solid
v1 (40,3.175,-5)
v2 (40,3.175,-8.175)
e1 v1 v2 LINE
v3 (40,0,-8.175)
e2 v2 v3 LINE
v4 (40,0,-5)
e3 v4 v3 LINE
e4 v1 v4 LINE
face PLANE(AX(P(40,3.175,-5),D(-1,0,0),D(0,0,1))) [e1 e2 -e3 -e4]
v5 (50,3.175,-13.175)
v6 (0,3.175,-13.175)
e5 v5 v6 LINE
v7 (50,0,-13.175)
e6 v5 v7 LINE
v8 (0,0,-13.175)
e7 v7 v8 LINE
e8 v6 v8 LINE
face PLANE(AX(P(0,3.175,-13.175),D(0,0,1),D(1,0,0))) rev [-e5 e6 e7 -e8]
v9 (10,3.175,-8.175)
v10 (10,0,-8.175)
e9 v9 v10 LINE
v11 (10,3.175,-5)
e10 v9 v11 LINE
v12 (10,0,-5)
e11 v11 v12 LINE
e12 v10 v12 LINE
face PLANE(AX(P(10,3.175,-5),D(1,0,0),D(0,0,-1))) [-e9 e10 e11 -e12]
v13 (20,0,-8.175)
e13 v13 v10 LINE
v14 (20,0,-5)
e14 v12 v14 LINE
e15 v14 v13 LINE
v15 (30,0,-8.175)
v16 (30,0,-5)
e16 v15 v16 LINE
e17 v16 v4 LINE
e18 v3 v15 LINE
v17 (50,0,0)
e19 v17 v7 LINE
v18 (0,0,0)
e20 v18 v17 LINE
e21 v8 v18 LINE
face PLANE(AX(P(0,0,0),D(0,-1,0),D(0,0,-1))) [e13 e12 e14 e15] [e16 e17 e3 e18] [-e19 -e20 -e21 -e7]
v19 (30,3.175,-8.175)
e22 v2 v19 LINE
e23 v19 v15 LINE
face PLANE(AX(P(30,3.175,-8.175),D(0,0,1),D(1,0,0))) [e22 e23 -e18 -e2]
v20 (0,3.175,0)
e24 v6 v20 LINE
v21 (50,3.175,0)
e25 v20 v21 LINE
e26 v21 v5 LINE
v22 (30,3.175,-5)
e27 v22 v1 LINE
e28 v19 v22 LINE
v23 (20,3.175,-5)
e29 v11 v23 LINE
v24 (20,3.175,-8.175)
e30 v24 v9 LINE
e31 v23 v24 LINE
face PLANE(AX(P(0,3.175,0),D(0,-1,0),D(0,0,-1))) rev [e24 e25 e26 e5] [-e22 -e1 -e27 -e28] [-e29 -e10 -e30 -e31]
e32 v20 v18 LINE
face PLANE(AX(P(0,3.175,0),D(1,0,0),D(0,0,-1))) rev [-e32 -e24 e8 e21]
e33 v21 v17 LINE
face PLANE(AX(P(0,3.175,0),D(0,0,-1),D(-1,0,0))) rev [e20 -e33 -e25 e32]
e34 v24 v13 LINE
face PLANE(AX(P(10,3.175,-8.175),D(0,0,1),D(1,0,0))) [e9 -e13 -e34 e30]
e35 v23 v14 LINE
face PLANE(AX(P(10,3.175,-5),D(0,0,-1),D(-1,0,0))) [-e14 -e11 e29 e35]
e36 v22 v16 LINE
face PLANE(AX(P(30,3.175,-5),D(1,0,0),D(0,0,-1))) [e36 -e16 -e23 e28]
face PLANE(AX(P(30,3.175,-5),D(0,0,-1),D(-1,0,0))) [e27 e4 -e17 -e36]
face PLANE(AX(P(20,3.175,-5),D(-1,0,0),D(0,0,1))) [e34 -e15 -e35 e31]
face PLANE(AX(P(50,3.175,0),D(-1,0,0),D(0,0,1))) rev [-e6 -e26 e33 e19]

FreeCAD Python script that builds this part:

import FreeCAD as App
import Part
import Sketcher

doc = App.newDocument("Part")
body = doc.addObject("PartDesign::Body", "Body")

# Sketch on XZ plane
sketch1 = doc.addObject("Sketcher::SketchObject", "Sketch")
body.addObject(sketch1)
sketch1.AttachmentSupport = (doc.XZ_Plane, [""])
sketch1.MapMode = "FlatFace"
sketch1.addGeometry(Part.LineSegment(App.Vector(0, -13.175, 0), App.Vector(0, 0, 0)), False)
sketch1.addGeometry(Part.LineSegment(App.Vector(0, 0, 0), App.Vector(50, 0, 0)), False)
sketch1.addGeometry(Part.LineSegment(App.Vector(50, 0, 0), App.Vector(50, -13.175, 0)), False)
sketch1.addGeometry(Part.LineSegment(App.Vector(50, -13.175, 0), App.Vector(0, -13.175, 0)), False)
sketch1.addGeometry(Part.LineSegment(App.Vector(20, -5, 0), App.Vector(10, -5, 0)), False)
sketch1.addGeometry(Part.LineSegment(App.Vector(10, -5, 0), App.Vector(10, -8.175, 0)), False)
sketch1.addGeometry(Part.LineSegment(App.Vector(10, -8.175, 0), App.Vector(20, -8.175, 0)), False)
sketch1.addGeometry(Part.LineSegment(App.Vector(20, -8.175, 0), App.Vector(20, -5, 0)), False)
sketch1.addGeometry(Part.LineSegment(App.Vector(40, -5, 0), App.Vector(30, -5, 0)), False)
sketch1.addGeometry(Part.LineSegment(App.Vector(30, -5, 0), App.Vector(30, -8.175, 0)), False)
sketch1.addGeometry(Part.LineSegment(App.Vector(30, -8.175, 0), App.Vector(40, -8.175, 0)), False)
sketch1.addGeometry(Part.LineSegment(App.Vector(40, -8.175, 0), App.Vector(40, -5, 0)), False)
sketch1.addConstraint(Sketcher.Constraint("Coincident", 0, 2, 1, 1))
sketch1.addConstraint(Sketcher.Constraint("Coincident", 1, 2, 2, 1))
sketch1.addConstraint(Sketcher.Constraint("Coincident", 2, 2, 3, 1))
sketch1.addConstraint(Sketcher.Constraint("Coincident", 3, 2, 0, 1))
sketch1.addConstraint(Sketcher.Constraint("Coincident", 4, 2, 5, 1))
sketch1.addConstraint(Sketcher.Constraint("Coincident", 5, 2, 6, 1))
sketch1.addConstraint(Sketcher.Constraint("Coincident", 6, 2, 7, 1))
sketch1.addConstraint(Sketcher.Constraint("Coincident", 7, 2, 4, 1))
sketch1.addConstraint(Sketcher.Constraint("Coincident", 8, 2, 9, 1))
sketch1.addConstraint(Sketcher.Constraint("Coincident", 9, 2, 10, 1))
sketch1.addConstraint(Sketcher.Constraint("Coincident", 10, 2, 11, 1))
sketch1.addConstraint(Sketcher.Constraint("Coincident", 11, 2, 8, 1))
sketch1.addConstraint(Sketcher.Constraint("Vertical", 0))
sketch1.addConstraint(Sketcher.Constraint("Horizontal", 1))
sketch1.addConstraint(Sketcher.Constraint("Vertical", 2))
sketch1.addConstraint(Sketcher.Constraint("Horizontal", 3))
sketch1.addConstraint(Sketcher.Constraint("Horizontal", 4))
sketch1.addConstraint(Sketcher.Constraint("Vertical", 5))
sketch1.addConstraint(Sketcher.Constraint("Horizontal", 6))
sketch1.addConstraint(Sketcher.Constraint("Vertical", 7))
sketch1.addConstraint(Sketcher.Constraint("Horizontal", 8))
sketch1.addConstraint(Sketcher.Constraint("Vertical", 9))
sketch1.addConstraint(Sketcher.Constraint("Horizontal", 10))
sketch1.addConstraint(Sketcher.Constraint("Vertical", 11))
sketch1.addConstraint(Sketcher.Constraint("Coincident", 0, 2, -1, 1))
sketch1.addConstraint(Sketcher.Constraint("Horizontal", 7, 2, 8, 2))
sketch1.addConstraint(Sketcher.Constraint("Horizontal", 6, 2, 9, 2))
sketch1.addConstraint(Sketcher.Constraint("Equal", 6, 8))
sketch1.addConstraint(Sketcher.Constraint("DistanceX", 1, 1, 1, 2, 50.0))
sketch1.addConstraint(Sketcher.Constraint("DistanceX", 4, 2, 4, 1, 10.0))
sketch1.addConstraint(Sketcher.Constraint("DistanceX", -1, 1, 4, 2, 10.0))
sketch1.addConstraint(Sketcher.Constraint("DistanceY", 4, 2, -1, 1, 5.0))
sketch1.addConstraint(Sketcher.Constraint("DistanceX", -1, 1, 8, 2, 30.0))
sketch1.addConstraint(Sketcher.Constraint("DistanceY", 3, 2, 5, 2, 5.0))
sketch1.addConstraint(Sketcher.Constraint("DistanceY", 0, 1, 0, 2, 13.175))
pad1 = doc.addObject("PartDesign::Pad", "Pad")
body.addObject(pad1)
pad1.Profile = sketch1
pad1.Length = 3.175
pad1.Reversed = True

doc.recompute()
